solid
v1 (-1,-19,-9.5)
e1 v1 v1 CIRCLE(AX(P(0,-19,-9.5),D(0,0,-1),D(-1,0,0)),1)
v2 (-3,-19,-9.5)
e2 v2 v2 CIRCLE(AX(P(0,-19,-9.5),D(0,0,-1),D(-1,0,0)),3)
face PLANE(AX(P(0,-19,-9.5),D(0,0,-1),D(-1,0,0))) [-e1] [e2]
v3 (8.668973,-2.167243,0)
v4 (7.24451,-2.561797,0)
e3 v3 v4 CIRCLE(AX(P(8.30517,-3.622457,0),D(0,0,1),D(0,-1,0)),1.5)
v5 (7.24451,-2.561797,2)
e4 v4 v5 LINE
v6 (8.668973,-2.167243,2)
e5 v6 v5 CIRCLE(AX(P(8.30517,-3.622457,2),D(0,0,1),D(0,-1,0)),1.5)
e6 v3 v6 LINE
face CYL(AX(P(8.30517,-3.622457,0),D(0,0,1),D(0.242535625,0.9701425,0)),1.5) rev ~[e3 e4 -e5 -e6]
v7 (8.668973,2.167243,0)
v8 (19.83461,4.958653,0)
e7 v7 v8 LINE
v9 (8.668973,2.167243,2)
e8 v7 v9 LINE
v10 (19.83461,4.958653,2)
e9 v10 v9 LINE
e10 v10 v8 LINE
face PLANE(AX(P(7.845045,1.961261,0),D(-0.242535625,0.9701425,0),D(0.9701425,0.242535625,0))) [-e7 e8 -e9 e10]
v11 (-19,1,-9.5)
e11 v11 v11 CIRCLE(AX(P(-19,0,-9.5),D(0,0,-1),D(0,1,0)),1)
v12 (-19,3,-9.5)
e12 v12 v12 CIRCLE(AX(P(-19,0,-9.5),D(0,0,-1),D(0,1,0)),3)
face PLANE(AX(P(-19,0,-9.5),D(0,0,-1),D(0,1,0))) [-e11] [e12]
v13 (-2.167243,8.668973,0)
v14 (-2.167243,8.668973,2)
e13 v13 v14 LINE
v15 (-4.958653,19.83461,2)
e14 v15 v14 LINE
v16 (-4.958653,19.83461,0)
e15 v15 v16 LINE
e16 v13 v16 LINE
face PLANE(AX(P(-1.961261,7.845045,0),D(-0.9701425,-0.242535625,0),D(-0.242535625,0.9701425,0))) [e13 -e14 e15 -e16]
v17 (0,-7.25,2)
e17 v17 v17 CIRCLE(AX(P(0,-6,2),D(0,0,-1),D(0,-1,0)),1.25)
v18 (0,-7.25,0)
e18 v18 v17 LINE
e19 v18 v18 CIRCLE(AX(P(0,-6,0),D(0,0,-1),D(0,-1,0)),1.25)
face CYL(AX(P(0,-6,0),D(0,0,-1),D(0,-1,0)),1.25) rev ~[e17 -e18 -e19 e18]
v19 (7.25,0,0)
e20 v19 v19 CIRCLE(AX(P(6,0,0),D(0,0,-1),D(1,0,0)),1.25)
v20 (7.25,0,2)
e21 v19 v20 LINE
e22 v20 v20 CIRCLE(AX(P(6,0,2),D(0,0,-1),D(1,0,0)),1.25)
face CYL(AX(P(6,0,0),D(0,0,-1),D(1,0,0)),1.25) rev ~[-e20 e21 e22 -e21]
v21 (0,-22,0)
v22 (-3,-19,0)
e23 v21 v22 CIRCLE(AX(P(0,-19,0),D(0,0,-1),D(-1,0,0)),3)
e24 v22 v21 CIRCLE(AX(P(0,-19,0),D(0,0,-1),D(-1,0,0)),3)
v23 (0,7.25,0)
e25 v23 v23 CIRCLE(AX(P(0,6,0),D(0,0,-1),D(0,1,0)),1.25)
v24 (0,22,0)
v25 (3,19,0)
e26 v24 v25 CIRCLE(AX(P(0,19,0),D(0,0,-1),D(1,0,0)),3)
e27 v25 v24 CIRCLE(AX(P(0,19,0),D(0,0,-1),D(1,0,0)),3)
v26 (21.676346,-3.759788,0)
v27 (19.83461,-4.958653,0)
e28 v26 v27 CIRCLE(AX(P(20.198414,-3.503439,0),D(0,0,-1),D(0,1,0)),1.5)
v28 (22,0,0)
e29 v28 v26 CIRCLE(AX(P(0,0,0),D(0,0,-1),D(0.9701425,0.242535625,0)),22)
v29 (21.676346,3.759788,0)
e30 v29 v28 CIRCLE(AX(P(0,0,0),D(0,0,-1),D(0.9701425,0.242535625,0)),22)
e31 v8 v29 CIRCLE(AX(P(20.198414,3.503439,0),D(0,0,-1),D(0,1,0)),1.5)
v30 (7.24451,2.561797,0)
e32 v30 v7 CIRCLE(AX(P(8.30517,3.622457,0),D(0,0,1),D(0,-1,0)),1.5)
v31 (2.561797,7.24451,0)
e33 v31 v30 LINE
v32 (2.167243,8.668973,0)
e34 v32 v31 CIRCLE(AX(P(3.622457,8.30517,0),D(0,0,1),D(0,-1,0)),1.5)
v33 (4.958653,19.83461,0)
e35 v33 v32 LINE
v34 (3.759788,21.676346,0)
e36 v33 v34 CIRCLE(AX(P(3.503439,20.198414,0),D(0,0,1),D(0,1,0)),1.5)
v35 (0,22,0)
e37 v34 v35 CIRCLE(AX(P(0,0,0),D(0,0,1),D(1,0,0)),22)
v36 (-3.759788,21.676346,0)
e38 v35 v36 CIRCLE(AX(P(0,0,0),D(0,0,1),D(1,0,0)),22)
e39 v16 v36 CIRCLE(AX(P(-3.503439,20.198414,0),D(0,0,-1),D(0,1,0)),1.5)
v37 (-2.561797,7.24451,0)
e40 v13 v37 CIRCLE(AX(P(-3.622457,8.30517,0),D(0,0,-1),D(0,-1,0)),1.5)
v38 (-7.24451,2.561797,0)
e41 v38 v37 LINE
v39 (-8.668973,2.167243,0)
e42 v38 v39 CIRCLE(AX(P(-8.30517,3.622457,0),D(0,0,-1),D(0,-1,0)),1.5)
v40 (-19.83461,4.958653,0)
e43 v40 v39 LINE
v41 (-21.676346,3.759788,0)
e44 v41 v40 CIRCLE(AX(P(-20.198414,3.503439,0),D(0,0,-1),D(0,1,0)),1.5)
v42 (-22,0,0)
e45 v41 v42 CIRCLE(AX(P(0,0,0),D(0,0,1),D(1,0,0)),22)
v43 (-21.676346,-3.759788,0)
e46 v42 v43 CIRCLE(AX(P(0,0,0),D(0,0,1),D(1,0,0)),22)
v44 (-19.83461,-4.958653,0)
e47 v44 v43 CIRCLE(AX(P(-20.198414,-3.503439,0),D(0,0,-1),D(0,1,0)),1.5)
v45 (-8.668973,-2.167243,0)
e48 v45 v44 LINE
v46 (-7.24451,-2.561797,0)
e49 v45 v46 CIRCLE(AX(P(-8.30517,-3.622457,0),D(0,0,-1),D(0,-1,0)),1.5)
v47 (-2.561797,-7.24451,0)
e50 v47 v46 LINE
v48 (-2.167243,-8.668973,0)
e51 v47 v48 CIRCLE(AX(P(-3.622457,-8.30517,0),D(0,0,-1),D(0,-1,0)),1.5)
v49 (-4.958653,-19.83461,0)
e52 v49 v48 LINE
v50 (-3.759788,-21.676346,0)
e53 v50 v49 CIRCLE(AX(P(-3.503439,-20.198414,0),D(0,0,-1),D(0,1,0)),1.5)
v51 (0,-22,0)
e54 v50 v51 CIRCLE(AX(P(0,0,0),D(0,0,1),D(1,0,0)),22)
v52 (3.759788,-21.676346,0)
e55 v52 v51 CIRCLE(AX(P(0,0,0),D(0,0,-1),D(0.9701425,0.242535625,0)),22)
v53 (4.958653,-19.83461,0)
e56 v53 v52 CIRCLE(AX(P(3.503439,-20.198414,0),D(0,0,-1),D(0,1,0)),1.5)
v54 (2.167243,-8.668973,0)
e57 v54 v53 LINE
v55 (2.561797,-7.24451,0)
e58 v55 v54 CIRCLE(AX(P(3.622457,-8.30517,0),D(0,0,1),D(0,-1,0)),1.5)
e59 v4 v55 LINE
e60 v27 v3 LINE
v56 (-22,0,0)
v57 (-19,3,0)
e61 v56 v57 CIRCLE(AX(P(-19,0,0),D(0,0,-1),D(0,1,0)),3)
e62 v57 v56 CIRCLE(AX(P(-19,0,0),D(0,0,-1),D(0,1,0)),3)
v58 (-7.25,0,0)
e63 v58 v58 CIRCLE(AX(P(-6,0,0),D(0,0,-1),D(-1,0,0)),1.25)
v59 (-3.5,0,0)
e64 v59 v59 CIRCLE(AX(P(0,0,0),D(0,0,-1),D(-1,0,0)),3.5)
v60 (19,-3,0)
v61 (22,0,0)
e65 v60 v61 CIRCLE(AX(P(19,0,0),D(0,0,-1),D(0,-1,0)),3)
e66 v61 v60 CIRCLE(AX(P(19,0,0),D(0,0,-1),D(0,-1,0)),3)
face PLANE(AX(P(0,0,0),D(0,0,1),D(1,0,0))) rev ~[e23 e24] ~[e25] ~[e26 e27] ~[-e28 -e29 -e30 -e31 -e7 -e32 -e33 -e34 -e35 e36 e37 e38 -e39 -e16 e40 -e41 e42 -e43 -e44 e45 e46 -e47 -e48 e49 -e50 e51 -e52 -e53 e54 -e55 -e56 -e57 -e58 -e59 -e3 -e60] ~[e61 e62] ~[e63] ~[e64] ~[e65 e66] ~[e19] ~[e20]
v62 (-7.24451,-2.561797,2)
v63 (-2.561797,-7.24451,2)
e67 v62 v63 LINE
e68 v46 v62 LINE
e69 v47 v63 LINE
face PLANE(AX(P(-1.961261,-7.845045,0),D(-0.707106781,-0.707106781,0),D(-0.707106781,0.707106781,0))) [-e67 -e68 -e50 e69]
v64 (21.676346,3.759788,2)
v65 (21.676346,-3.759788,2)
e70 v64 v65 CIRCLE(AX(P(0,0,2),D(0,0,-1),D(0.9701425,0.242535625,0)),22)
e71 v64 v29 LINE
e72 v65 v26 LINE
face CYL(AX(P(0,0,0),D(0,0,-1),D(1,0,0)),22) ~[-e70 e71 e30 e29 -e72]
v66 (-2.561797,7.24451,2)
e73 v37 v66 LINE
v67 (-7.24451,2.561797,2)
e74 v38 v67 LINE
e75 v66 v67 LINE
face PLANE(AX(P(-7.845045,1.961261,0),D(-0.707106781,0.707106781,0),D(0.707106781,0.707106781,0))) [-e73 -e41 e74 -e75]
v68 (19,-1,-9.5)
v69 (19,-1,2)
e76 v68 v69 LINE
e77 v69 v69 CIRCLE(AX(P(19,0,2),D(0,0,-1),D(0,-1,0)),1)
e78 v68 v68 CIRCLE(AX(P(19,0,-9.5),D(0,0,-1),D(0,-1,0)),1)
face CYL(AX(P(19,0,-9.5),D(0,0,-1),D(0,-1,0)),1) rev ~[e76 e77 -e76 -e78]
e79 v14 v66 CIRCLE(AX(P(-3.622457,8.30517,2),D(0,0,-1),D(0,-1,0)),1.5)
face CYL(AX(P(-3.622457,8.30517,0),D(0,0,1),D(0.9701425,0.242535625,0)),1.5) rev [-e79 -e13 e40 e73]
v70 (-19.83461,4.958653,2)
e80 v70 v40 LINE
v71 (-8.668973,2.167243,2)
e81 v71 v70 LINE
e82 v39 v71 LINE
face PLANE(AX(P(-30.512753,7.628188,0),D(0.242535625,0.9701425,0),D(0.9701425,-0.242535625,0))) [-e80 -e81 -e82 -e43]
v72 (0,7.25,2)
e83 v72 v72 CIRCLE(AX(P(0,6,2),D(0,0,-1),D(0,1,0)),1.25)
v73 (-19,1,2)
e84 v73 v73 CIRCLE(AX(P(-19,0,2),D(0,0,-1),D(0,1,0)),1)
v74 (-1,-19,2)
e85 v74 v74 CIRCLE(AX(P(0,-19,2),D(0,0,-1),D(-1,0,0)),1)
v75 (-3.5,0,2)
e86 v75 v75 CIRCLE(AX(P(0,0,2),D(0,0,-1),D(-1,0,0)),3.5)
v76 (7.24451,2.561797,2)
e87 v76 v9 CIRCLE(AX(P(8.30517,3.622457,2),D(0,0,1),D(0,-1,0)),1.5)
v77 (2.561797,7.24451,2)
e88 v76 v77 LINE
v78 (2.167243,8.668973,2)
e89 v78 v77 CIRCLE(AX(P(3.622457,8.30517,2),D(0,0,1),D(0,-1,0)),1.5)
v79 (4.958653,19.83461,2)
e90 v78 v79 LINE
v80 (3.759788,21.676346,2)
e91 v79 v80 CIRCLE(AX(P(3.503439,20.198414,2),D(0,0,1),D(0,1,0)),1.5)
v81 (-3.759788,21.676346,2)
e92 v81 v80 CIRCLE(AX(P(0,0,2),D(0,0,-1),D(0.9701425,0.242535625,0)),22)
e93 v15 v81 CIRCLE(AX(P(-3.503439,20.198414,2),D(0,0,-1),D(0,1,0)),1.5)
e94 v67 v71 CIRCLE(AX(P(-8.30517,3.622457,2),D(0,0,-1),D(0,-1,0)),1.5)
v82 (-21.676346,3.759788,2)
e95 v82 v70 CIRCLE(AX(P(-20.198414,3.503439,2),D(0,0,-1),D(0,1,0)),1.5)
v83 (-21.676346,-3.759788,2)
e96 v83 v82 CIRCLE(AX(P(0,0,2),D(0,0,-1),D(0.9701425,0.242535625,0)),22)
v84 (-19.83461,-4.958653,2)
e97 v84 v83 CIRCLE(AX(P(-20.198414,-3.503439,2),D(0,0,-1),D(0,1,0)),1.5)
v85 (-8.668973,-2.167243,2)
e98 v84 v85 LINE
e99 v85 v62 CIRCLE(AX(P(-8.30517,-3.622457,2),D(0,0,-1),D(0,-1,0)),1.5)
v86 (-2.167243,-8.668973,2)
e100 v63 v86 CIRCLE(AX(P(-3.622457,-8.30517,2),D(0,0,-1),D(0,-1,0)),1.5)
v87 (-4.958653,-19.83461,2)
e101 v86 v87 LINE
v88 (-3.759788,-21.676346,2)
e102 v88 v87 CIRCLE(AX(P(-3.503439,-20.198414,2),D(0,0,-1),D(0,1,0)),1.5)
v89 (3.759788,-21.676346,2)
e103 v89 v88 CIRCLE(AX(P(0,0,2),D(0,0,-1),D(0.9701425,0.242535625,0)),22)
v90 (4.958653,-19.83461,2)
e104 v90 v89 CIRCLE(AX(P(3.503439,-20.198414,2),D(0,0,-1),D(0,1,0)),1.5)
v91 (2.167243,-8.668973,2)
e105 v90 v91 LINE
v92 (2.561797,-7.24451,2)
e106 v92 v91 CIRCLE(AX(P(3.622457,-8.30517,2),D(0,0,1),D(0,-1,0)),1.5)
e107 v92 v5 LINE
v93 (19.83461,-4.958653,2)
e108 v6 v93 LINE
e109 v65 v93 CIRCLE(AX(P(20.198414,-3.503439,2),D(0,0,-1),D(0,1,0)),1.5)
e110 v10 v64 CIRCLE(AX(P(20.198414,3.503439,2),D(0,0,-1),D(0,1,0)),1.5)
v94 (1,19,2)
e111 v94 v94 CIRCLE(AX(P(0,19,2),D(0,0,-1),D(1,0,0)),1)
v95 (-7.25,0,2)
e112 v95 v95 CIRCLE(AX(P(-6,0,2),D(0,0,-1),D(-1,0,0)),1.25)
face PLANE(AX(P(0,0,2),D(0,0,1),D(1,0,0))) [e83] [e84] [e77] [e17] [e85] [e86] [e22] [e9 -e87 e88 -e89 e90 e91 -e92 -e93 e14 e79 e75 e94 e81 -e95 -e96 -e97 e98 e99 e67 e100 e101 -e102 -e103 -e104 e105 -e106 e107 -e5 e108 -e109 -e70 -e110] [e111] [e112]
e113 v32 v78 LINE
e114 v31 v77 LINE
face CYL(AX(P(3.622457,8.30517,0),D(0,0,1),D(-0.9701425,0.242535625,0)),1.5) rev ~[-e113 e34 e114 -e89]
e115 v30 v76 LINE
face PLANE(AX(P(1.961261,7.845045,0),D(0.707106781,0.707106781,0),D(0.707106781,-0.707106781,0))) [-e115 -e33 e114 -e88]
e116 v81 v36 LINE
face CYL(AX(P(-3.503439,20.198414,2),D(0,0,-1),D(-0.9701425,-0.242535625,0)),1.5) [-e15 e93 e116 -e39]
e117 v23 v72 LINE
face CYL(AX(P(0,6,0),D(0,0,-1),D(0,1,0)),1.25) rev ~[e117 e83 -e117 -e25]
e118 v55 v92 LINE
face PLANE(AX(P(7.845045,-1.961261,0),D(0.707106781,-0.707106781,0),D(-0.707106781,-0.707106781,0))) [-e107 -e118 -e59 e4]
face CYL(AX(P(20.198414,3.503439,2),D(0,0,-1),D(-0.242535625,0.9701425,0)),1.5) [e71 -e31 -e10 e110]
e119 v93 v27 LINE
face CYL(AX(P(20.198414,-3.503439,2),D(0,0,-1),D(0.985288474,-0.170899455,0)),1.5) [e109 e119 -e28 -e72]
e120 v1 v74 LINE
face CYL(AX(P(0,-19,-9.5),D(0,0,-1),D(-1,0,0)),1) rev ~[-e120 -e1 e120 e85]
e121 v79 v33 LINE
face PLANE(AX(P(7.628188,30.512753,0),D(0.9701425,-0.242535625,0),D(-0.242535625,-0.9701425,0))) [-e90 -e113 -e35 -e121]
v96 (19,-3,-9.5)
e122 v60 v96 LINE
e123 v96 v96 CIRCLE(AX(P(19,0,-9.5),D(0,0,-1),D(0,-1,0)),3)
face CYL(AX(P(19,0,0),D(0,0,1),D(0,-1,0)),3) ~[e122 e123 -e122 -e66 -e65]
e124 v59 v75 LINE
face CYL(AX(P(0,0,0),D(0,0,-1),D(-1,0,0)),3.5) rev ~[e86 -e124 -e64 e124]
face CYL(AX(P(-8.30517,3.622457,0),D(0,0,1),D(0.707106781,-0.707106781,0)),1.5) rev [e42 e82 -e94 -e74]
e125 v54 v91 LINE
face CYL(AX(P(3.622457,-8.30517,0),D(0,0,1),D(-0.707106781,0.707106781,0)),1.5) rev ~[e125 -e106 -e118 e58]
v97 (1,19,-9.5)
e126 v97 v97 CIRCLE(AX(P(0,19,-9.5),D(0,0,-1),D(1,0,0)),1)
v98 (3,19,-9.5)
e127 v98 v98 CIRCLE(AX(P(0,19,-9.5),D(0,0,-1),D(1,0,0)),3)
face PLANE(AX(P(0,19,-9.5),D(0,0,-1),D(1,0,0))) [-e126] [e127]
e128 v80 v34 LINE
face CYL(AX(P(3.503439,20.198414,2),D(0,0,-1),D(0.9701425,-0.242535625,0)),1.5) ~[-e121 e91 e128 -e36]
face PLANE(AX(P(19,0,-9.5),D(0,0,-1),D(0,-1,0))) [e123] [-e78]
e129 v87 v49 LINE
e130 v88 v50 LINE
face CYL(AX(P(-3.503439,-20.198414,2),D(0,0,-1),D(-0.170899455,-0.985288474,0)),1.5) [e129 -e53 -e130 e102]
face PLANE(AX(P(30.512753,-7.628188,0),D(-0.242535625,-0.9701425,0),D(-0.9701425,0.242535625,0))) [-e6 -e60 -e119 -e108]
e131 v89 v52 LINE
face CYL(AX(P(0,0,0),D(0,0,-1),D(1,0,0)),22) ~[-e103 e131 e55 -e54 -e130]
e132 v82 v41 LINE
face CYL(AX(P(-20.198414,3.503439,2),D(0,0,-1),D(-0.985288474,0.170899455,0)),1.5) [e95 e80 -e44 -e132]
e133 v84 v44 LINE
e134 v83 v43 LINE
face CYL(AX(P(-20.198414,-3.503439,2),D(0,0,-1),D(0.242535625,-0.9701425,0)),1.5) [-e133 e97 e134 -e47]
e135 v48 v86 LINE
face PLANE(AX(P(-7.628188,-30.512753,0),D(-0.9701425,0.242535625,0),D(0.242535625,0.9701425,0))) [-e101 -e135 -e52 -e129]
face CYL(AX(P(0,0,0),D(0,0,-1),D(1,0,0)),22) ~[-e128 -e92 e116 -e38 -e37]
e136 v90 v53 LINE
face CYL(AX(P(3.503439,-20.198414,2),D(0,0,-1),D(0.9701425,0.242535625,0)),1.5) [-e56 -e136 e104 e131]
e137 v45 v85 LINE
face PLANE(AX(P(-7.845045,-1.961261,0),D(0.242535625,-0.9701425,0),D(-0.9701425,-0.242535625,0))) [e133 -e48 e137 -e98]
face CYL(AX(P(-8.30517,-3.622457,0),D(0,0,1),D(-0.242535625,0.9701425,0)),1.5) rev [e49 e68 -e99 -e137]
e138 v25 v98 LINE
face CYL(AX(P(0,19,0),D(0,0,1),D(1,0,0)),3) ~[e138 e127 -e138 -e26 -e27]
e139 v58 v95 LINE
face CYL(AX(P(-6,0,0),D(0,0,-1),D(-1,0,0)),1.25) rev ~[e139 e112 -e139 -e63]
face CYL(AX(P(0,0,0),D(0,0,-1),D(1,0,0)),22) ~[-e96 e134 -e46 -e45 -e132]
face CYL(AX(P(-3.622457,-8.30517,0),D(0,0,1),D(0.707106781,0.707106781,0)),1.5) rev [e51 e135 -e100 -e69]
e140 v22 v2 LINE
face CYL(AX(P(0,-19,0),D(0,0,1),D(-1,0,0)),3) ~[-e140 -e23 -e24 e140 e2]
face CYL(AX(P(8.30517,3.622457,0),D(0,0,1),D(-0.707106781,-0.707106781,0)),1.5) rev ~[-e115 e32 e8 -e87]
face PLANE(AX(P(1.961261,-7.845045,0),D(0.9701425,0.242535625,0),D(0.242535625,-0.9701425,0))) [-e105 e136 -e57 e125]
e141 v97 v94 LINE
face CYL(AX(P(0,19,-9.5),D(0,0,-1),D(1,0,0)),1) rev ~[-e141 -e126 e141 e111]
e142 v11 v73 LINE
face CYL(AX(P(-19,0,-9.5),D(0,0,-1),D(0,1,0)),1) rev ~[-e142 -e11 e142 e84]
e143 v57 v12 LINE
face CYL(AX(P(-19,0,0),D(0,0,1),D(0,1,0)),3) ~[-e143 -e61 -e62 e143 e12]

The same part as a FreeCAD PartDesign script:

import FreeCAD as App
import Part
import Sketcher
from FreeCAD import Vector
Q = App.Units.Quantity


def edges_at(feature, points):
    """Names of the edges that pass closest to the given points."""
    edges = feature.Shape.Edges
    near = lambda p: min(range(len(edges)), key=lambda i: edges[i].distToShape(Part.Vertex(*p))[0])
    return sorted({f"Edge{near(p) + 1}" for p in points})

doc = App.newDocument("Part")
body = doc.addObject("PartDesign::Body", "Body")

# Sketch on XY plane
sketch1 = body.newObject("Sketcher::SketchObject", "Sketch")
sketch1.AttachmentSupport = (doc.getObject("XY_Plane"), [""])
sketch1.MapMode = "FlatFace"
sketch1.addGeometry(Part.Circle(Vector(0, 0, 0), Vector(0, 0, 1), 22), False)
sketch1.addConstraint(Sketcher.Constraint("Coincident", 0, 3, -1, 1))
sketch1.addConstraint(Sketcher.Constraint("Diameter", 0, 44.0))
pad1 = body.newObject("PartDesign::Pad", "Pad")
pad1.Profile = sketch1
pad1.Length = 2

# Sketch on XY plane
sketch2 = body.newObject("Sketcher::SketchObject", "Sketch001")
sketch2.AttachmentSupport = (doc.getObject("XY_Plane"), [""])
sketch2.MapMode = "FlatFace"
sketch2.addGeometry(Part.Circle(Vector(-6, 0, 0), Vector(0, 0, 1), 1.25), False)
sketch2.addConstraint(Sketcher.Constraint("PointOnObject", 0, 3, -1))
sketch2.addConstraint(Sketcher.Constraint("Diameter", 0, 2.5))
sketch2.addConstraint(Sketcher.Constraint("DistanceX", 0, 3, -1, 1, 6.0))
pocket1 = body.newObject("PartDesign::Pocket", "Pocket")
pocket1.Profile = sketch2
pocket1.Length = 3
pocket1.Reversed = True

# Sketch on XY plane
sketch3 = body.newObject("Sketcher::SketchObject", "Sketch002")
sketch3.AttachmentSupport = (doc.getObject("XY_Plane"), [""])
sketch3.MapMode = "FlatFace"
sketch3.addGeometry(Part.Circle(Vector(0, 0, 0), Vector(0, 0, 1), 3.5), False)
sketch3.addConstraint(Sketcher.Constraint("Coincident", 0, 3, -1, 1))
sketch3.addConstraint(Sketcher.Constraint("Diameter", 0, 7.0))
pocket2 = body.newObject("PartDesign::Pocket", "Pocket001")
pocket2.Profile = sketch3
pocket2.Length = 3
pocket2.Reversed = True

# Sketch on XY plane
sketch4 = body.newObject("Sketcher::SketchObject", "Sketch003")
sketch4.AttachmentSupport = (doc.getObject("XY_Plane"), [""])
sketch4.MapMode = "FlatFace"
sketch4.addGeometry(Part.Circle(Vector(0, -19, 0), Vector(0, 0, 1), 3), False)
sketch4.addConstraint(Sketcher.Constraint("PointOnObject", 0, 3, -2))
sketch4.addConstraint(Sketcher.Constraint("Diameter", 0, 6.0))
sketch4.addConstraint(Sketcher.Constraint("DistanceY", 0, 3, -1, 1, 19.0))
pad2 = body.newObject("PartDesign::Pad", "Pad001")
pad2.Profile = sketch4
pad2.Length = 9.5
pad2.Reversed = True

# Sketch on XY plane
sketch5 = body.newObject("Sketcher::SketchObject", "Sketch004")
sketch5.AttachmentSupport = (doc.getObject("XY_Plane"), [""])
sketch5.MapMode = "FlatFace"
sketch5.AttachmentOffset = App.Placement(Vector(0, 0, -9.5), App.Rotation())
sketch5.addGeometry(Part.Circle(Vector(0, -19, 0), Vector(0, 0, 1), 1), False)
sketch5.addConstraint(Sketcher.Constraint("PointOnObject", 0, 3, -2))
sketch5.addConstraint(Sketcher.Constraint("Diameter", 0, 2.0))
sketch5.addConstraint(Sketcher.Constraint("DistanceY", 0, 3, -1, 1, 19.0))
pocket3 = body.newObject("PartDesign::Pocket", "Pocket002")
pocket3.Profile = sketch5
pocket3.Length = 11.5
pocket3.Reversed = True

# Sketch on XY plane
sketch6 = body.newObject("Sketcher::SketchObject", "Sketch005")
sketch6.AttachmentSupport = (doc.getObject("XY_Plane"), [""])
sketch6.MapMode = "FlatFace"
sketch6.addGeometry(Part.LineSegment(Vector(7.845045, 1.961261, 0), Vector(1.961261, 7.845045, 0)), False)
sketch6.addGeometry(Part.LineSegment(Vector(1.961261, 7.845045, 0), Vector(7.628188, 30.512753, 0)), False)
sketch6.addGeometry(Part.LineSegment(Vector(7.628188, 30.512753, 0), Vector(30.512753, 7.628188, 0)), False)
sketch6.addGeometry(Part.LineSegment(Vector(30.512753, 7.628188, 0), Vector(7.845045, 1.961261, 0)), False)
sketch6.addConstraint(Sketcher.Constraint("Coincident", 0, 2, 1, 1))
sketch6.addConstraint(Sketcher.Constraint("Coincident", 1, 2, 2, 1))
sketch6.addConstraint(Sketcher.Constraint("Coincident", 2, 2, 3, 1))
sketch6.addConstraint(Sketcher.Constraint("Coincident", 3, 2, 0, 1))
sketch6.addConstraint(Sketcher.Constraint("Parallel", 0, 2))
sketch6.addConstraint(Sketcher.Constraint("Equal", 1, 3))
sketch6.addConstraint(Sketcher.Constraint("Angle", 0, Q("135 deg")))
sketch6.addConstraint(Sketcher.Constraint("Distance", 2, 32.363661))
sketch6.addConstraint(Sketcher.Constraint("DistanceX", -1, 1, 0, 2, 1.961261))
sketch6.addConstraint(Sketcher.Constraint("DistanceX", -1, 1, 1, 2, 7.628188))
sketch6.addConstraint(Sketcher.Constraint("DistanceY", -1, 1, 2, 2, 7.628188))
sketch6.addConstraint(Sketcher.Constraint("Distance", 0, 8.320927))
pocket4 = body.newObject("PartDesign::Pocket", "Pocket003")
pocket4.Profile = sketch6
pocket4.Length = 6
pocket4.Reversed = True
doc.recompute()

polarpattern = body.newObject("PartDesign::PolarPattern", "PolarPattern")
polarpattern.Originals = [pocket1, pad2, pocket3, pocket4]
polarpattern.Axis = (doc.getObject("Z_Axis"), [""])
polarpattern.Angle = 360
polarpattern.Occurrences = 4
body.Tip = polarpattern
doc.recompute()

fillet = body.newObject("PartDesign::Fillet", "Fillet")
fillet.Base = (polarpattern, edges_at(polarpattern, [
    (-5.336, -21.343, 1),
    (-21.343, -5.336, 1),
    (21.343, -5.336, 1),
    (5.336, -21.343, 1),
    (5.336, 21.343, 1),
    (21.343, 5.336, 1),
    (-21.343, 5.336, 1),
    (-5.336, 21.343, 1),
]))
fillet.Radius = 1.5
doc.recompute()

fillet2 = body.newObject("PartDesign::Fillet", "Fillet001")
fillet2.Base = (fillet, edges_at(fillet, [
    (-7.845, -1.961, 1),
    (-1.961, -7.845, 1),
    (1.961, -7.845, 1),
    (7.845, -1.961, 1),
    (7.845, 1.961, 1),
    (1.961, 7.845, 1),
    (-1.961, 7.845, 1),
    (-7.845, 1.961, 1),
]))
fillet2.Radius = 1.5

doc.recompute()
